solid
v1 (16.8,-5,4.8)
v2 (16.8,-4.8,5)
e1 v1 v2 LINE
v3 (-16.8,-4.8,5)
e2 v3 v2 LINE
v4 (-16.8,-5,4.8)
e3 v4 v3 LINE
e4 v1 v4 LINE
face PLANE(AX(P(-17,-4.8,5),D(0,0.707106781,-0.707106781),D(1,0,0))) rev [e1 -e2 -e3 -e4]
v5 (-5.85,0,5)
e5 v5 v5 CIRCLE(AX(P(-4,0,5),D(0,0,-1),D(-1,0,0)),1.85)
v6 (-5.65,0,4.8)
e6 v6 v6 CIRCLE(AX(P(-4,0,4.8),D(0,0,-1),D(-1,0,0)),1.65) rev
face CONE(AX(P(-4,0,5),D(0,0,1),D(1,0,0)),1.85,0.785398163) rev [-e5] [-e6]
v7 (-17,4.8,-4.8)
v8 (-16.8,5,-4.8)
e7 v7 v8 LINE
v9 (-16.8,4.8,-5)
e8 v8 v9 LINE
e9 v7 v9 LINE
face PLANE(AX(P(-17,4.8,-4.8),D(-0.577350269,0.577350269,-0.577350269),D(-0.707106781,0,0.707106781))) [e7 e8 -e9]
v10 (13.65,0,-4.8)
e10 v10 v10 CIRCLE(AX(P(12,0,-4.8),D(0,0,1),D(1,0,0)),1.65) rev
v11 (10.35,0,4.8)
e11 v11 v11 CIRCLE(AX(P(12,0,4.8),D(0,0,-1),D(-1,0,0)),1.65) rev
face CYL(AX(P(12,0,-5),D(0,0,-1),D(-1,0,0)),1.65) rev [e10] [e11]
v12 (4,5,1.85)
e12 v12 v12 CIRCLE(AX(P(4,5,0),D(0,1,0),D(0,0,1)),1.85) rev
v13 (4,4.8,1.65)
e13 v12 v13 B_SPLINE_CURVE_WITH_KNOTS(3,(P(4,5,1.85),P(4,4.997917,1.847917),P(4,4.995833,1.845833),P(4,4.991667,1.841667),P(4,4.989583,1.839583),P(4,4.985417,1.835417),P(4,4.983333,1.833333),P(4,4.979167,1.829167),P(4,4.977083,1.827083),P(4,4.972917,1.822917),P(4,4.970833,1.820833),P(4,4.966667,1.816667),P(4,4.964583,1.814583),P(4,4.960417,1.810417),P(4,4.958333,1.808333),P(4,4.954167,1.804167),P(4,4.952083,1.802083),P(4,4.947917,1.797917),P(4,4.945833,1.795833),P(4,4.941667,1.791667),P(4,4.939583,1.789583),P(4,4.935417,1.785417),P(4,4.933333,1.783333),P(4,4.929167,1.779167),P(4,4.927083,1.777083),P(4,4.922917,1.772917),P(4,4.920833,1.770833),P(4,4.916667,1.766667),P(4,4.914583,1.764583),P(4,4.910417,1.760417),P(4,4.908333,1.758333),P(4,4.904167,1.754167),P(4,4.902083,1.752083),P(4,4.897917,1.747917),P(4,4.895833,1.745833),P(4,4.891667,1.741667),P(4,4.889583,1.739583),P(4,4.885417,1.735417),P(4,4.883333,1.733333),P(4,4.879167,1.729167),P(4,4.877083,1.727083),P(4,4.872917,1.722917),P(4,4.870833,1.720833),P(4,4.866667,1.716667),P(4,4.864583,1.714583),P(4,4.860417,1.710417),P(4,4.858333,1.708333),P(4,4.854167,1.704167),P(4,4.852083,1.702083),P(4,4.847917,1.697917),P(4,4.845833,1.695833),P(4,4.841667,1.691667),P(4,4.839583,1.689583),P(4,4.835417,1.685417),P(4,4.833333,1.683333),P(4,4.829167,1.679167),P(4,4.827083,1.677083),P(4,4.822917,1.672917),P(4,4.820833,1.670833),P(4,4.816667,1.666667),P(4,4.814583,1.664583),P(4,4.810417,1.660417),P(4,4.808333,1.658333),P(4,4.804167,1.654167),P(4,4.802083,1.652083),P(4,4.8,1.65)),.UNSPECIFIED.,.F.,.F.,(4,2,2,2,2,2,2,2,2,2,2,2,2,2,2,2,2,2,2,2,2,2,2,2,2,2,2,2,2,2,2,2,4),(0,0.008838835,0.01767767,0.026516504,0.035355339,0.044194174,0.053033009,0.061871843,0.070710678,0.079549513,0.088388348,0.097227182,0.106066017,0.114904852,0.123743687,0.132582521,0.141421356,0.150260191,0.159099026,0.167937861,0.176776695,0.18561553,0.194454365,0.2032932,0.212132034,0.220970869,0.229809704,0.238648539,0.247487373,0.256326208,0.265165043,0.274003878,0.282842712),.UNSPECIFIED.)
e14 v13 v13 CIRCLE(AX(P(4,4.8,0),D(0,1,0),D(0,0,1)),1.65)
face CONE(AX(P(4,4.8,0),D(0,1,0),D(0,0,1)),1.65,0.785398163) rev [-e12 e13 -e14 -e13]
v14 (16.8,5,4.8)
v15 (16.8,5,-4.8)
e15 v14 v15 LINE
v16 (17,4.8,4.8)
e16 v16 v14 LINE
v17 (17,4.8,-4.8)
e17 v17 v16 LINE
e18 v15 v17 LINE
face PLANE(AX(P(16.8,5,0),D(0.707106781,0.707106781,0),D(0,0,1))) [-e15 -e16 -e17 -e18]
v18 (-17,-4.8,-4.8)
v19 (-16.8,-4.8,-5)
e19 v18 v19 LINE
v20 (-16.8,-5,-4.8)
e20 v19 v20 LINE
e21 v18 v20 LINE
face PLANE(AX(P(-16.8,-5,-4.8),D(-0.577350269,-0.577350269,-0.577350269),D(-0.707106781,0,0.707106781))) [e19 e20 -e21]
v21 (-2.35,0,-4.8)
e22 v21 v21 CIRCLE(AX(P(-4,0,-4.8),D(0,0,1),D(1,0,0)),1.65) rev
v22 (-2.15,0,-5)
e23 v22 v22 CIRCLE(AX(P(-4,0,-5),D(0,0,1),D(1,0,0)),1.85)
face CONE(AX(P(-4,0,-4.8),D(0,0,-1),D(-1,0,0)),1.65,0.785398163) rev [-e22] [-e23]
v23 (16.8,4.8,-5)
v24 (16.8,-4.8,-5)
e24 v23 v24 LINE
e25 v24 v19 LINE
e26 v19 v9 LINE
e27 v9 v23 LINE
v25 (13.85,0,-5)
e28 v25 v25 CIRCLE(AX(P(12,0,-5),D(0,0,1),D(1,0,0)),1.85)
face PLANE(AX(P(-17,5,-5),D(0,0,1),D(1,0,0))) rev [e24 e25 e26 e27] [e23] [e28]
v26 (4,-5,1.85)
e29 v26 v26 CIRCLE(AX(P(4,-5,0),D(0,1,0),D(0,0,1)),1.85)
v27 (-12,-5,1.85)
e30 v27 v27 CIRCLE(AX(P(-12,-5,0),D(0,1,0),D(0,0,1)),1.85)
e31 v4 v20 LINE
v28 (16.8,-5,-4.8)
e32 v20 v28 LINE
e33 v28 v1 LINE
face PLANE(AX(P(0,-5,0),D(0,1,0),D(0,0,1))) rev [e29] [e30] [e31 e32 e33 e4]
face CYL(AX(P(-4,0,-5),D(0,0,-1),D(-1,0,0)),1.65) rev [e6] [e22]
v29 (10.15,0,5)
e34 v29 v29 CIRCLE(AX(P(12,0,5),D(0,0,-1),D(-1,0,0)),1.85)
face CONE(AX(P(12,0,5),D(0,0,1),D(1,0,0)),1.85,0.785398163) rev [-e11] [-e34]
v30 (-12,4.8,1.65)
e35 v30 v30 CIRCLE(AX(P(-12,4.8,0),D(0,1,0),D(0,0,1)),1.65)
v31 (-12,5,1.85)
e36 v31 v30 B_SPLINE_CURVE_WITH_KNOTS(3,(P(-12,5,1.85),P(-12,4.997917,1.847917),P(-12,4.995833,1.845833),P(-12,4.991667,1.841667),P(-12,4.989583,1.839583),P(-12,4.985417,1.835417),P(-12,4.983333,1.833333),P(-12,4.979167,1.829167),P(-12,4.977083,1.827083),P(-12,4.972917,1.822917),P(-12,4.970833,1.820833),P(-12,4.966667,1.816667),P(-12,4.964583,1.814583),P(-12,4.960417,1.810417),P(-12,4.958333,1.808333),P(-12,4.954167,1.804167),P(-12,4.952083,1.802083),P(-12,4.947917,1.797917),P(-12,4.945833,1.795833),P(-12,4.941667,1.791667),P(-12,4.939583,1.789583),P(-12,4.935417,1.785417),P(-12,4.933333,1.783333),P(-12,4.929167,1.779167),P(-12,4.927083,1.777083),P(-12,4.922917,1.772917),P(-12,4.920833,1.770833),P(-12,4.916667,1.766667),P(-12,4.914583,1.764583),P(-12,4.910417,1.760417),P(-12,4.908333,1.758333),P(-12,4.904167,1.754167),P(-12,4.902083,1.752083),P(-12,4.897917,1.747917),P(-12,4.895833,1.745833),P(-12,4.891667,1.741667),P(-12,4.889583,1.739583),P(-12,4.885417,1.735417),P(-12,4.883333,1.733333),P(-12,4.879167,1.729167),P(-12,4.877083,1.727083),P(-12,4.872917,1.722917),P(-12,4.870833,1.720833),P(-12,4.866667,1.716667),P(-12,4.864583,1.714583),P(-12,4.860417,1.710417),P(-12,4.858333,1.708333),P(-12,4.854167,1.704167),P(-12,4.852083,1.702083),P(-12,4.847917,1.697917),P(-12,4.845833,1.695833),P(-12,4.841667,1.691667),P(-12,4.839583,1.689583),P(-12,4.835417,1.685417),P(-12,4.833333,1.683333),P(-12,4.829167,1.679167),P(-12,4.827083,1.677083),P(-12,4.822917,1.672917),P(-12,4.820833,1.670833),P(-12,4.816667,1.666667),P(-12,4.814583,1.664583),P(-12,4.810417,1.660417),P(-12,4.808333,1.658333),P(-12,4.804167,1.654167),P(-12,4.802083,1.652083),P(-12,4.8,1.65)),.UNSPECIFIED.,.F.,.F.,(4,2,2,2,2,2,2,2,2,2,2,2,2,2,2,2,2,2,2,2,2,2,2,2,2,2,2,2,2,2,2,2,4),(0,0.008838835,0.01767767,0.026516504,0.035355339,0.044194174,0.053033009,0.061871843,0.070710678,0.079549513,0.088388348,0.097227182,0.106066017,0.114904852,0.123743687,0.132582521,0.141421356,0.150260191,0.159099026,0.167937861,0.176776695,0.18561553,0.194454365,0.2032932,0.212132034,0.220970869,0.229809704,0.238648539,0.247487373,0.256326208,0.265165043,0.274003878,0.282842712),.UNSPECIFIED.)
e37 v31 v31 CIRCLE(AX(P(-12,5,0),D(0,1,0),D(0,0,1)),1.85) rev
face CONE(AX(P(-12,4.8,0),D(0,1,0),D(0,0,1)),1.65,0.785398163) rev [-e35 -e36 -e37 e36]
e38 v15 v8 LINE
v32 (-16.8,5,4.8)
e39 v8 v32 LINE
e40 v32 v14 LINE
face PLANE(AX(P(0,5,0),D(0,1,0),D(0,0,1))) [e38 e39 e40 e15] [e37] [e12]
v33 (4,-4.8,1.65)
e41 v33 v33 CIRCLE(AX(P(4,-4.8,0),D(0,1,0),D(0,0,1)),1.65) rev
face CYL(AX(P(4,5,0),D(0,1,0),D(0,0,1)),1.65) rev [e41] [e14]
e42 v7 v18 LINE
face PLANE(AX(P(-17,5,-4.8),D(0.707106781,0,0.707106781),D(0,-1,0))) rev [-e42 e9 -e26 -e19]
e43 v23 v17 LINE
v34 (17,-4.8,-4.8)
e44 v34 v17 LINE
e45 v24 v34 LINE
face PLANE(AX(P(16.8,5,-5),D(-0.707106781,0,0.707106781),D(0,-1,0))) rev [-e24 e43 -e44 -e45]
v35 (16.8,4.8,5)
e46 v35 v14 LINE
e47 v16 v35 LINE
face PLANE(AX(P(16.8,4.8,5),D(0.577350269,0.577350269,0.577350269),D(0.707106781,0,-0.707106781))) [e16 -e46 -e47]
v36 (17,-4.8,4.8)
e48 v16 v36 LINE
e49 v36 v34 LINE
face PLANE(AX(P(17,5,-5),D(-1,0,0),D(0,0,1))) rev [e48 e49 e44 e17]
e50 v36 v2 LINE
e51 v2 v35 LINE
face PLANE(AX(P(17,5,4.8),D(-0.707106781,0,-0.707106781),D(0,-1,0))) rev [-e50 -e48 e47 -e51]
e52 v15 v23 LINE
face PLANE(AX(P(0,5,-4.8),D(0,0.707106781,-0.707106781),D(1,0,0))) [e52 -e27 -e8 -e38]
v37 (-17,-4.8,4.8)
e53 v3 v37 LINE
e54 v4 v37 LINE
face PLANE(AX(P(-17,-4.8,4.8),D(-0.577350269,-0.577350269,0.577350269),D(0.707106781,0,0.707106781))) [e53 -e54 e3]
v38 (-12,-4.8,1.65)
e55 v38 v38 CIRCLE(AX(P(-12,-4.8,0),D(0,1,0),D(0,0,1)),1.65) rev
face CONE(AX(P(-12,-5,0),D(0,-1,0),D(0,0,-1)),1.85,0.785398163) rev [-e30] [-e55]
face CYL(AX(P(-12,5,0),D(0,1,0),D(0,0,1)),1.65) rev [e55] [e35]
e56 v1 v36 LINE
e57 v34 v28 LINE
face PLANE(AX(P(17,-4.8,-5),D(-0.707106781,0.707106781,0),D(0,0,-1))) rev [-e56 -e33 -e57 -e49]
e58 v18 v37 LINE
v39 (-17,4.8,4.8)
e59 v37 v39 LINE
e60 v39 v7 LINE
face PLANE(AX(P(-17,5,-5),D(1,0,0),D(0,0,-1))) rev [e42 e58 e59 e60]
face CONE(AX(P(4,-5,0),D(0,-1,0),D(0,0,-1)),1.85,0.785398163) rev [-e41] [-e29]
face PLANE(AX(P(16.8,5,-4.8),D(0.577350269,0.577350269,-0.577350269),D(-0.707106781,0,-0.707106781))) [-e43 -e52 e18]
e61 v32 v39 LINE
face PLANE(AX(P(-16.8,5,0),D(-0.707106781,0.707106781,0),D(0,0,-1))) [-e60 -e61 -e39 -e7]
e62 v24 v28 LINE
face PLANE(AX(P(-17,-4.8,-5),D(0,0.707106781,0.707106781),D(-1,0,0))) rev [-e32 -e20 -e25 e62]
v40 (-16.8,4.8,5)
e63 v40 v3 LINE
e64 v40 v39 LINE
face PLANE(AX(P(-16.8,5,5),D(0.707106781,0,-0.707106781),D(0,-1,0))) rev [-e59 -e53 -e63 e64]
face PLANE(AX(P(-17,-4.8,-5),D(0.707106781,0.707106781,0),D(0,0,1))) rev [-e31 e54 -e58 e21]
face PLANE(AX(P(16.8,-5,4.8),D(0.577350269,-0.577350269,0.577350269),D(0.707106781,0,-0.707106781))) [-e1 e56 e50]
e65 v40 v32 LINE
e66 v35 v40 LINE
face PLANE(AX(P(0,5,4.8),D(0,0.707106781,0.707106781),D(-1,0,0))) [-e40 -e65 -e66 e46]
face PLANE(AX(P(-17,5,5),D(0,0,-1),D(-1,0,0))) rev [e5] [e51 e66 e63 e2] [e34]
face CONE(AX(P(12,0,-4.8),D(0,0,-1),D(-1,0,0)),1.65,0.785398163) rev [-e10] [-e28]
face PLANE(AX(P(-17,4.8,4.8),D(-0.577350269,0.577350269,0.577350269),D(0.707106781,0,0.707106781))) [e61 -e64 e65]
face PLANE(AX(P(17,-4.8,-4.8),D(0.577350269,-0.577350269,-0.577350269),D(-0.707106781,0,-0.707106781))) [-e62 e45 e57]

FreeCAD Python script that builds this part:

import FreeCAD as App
import Part
import Sketcher
from FreeCAD import Vector
Q = App.Units.Quantity


def add_polygon(sketch, points):
    """Adds a closed chain of lines whose ends are joined by coincident constraints."""
    first, n = sketch.GeometryCount, len(points)
    for a, b in zip(points, points[1:] + points[:1]):
        sketch.addGeometry(Part.LineSegment(App.Vector(*a, 0), App.Vector(*b, 0)), False)
    for i in range(n):
        sketch.addConstraint(Sketcher.Constraint("Coincident", first + i, 2, first + (i + 1) % n, 1))

doc = App.newDocument("Part")
body = doc.addObject("PartDesign::Body", "Body")

# Sketch on XZ plane
sketch1 = body.newObject("Sketcher::SketchObject", "Sketch")
sketch1.AttachmentSupport = (doc.getObject("XZ_Plane"), [""])
sketch1.MapMode = "FlatFace"
add_polygon(sketch1, [(-17, -5), (-17, 5), (17, 5), (17, -5)])  # lines 0-3
sketch1.addConstraint(Sketcher.Constraint("Vertical", 0))
sketch1.addConstraint(Sketcher.Constraint("Horizontal", 1))
sketch1.addConstraint(Sketcher.Constraint("Vertical", 2))
sketch1.addConstraint(Sketcher.Constraint("Horizontal", 3))
sketch1.addConstraint(Sketcher.Constraint("Symmetric", 0, 2, 2, 2, -1, 1))
sketch1.addConstraint(Sketcher.Constraint("DistanceX", 1, 1, 1, 2, Q("34 mm")))
sketch1.addConstraint(Sketcher.Constraint("DistanceY", 0, 1, 0, 2, Q("10 mm")))
pad1 = body.newObject("PartDesign::Pad", "Pad")
pad1.Profile = sketch1
pad1.Length = 10
pad1.Midplane = True

# Sketch on XZ plane
sketch2 = body.newObject("Sketcher::SketchObject", "Sketch001")
sketch2.AttachmentSupport = (doc.getObject("XZ_Plane"), [""])
sketch2.MapMode = "FlatFace"
sketch2.AttachmentOffset = App.Placement(Vector(0, 0, -5), App.Rotation())
sketch2.addGeometry(Part.Circle(Vector(-12, 0, 0), Vector(0, 0, 1), 1.65), False)
sketch2.addGeometry(Part.Circle(Vector(4, 0, 0), Vector(0, 0, 1), 1.65), False)
sketch2.addConstraint(Sketcher.Constraint("Equal", 0, 1))
sketch2.addConstraint(Sketcher.Constraint("PointOnObject", 0, 3, -1))
sketch2.addConstraint(Sketcher.Constraint("PointOnObject", 1, 3, -1))
sketch2.addConstraint(Sketcher.Constraint("Diameter", 0, Q("3.3 mm")))
sketch2.addConstraint(Sketcher.Constraint("DistanceX", 0, 3, -1, 1, Q("12 mm")))
sketch2.addConstraint(Sketcher.Constraint("DistanceX", -1, 1, 1, 3, Q("4 mm")))
doc.recompute()
hole = body.newObject("PartDesign::Hole", "Hole")
hole.Profile = sketch2
hole.ThreadType = "None"
hole.Diameter = 3.3
hole.DepthType = "ThroughAll"
hole.Reversed = True

# Sketch on XY plane
sketch3 = body.newObject("Sketcher::SketchObject", "Sketch002")
sketch3.AttachmentSupport = (doc.getObject("XY_Plane"), [""])
sketch3.MapMode = "FlatFace"
sketch3.AttachmentOffset = App.Placement(Vector(0, 0, -5), App.Rotation())
sketch3.addGeometry(Part.Circle(Vector(12, 0, 0), Vector(0, 0, 1), 1.65), False)
sketch3.addGeometry(Part.Circle(Vector(-4, 0, 0), Vector(0, 0, 1), 1.65), False)
sketch3.addConstraint(Sketcher.Constraint("Equal", 0, 1))
sketch3.addConstraint(Sketcher.Constraint("PointOnObject", 0, 3, -1))
sketch3.addConstraint(Sketcher.Constraint("PointOnObject", 1, 3, -1))
sketch3.addConstraint(Sketcher.Constraint("Diameter", 0, Q("3.3 mm")))
sketch3.addConstraint(Sketcher.Constraint("DistanceX", -1, 1, 0, 3, Q("12 mm")))
sketch3.addConstraint(Sketcher.Constraint("DistanceX", 1, 3, -1, 1, Q("4 mm")))
doc.recompute()
hole2 = body.newObject("PartDesign::Hole", "Hole001")
hole2.Profile = sketch3
hole2.ThreadType = "None"
hole2.Diameter = 3.3
hole2.DepthType = "ThroughAll"
hole2.Reversed = True
doc.recompute()

chamfer = body.newObject("PartDesign::Chamfer", "Chamfer")
chamfer.Base = (hole2, ["Edge1"])
chamfer.UseAllEdges = True
chamfer.Size = 0.2

doc.recompute()
